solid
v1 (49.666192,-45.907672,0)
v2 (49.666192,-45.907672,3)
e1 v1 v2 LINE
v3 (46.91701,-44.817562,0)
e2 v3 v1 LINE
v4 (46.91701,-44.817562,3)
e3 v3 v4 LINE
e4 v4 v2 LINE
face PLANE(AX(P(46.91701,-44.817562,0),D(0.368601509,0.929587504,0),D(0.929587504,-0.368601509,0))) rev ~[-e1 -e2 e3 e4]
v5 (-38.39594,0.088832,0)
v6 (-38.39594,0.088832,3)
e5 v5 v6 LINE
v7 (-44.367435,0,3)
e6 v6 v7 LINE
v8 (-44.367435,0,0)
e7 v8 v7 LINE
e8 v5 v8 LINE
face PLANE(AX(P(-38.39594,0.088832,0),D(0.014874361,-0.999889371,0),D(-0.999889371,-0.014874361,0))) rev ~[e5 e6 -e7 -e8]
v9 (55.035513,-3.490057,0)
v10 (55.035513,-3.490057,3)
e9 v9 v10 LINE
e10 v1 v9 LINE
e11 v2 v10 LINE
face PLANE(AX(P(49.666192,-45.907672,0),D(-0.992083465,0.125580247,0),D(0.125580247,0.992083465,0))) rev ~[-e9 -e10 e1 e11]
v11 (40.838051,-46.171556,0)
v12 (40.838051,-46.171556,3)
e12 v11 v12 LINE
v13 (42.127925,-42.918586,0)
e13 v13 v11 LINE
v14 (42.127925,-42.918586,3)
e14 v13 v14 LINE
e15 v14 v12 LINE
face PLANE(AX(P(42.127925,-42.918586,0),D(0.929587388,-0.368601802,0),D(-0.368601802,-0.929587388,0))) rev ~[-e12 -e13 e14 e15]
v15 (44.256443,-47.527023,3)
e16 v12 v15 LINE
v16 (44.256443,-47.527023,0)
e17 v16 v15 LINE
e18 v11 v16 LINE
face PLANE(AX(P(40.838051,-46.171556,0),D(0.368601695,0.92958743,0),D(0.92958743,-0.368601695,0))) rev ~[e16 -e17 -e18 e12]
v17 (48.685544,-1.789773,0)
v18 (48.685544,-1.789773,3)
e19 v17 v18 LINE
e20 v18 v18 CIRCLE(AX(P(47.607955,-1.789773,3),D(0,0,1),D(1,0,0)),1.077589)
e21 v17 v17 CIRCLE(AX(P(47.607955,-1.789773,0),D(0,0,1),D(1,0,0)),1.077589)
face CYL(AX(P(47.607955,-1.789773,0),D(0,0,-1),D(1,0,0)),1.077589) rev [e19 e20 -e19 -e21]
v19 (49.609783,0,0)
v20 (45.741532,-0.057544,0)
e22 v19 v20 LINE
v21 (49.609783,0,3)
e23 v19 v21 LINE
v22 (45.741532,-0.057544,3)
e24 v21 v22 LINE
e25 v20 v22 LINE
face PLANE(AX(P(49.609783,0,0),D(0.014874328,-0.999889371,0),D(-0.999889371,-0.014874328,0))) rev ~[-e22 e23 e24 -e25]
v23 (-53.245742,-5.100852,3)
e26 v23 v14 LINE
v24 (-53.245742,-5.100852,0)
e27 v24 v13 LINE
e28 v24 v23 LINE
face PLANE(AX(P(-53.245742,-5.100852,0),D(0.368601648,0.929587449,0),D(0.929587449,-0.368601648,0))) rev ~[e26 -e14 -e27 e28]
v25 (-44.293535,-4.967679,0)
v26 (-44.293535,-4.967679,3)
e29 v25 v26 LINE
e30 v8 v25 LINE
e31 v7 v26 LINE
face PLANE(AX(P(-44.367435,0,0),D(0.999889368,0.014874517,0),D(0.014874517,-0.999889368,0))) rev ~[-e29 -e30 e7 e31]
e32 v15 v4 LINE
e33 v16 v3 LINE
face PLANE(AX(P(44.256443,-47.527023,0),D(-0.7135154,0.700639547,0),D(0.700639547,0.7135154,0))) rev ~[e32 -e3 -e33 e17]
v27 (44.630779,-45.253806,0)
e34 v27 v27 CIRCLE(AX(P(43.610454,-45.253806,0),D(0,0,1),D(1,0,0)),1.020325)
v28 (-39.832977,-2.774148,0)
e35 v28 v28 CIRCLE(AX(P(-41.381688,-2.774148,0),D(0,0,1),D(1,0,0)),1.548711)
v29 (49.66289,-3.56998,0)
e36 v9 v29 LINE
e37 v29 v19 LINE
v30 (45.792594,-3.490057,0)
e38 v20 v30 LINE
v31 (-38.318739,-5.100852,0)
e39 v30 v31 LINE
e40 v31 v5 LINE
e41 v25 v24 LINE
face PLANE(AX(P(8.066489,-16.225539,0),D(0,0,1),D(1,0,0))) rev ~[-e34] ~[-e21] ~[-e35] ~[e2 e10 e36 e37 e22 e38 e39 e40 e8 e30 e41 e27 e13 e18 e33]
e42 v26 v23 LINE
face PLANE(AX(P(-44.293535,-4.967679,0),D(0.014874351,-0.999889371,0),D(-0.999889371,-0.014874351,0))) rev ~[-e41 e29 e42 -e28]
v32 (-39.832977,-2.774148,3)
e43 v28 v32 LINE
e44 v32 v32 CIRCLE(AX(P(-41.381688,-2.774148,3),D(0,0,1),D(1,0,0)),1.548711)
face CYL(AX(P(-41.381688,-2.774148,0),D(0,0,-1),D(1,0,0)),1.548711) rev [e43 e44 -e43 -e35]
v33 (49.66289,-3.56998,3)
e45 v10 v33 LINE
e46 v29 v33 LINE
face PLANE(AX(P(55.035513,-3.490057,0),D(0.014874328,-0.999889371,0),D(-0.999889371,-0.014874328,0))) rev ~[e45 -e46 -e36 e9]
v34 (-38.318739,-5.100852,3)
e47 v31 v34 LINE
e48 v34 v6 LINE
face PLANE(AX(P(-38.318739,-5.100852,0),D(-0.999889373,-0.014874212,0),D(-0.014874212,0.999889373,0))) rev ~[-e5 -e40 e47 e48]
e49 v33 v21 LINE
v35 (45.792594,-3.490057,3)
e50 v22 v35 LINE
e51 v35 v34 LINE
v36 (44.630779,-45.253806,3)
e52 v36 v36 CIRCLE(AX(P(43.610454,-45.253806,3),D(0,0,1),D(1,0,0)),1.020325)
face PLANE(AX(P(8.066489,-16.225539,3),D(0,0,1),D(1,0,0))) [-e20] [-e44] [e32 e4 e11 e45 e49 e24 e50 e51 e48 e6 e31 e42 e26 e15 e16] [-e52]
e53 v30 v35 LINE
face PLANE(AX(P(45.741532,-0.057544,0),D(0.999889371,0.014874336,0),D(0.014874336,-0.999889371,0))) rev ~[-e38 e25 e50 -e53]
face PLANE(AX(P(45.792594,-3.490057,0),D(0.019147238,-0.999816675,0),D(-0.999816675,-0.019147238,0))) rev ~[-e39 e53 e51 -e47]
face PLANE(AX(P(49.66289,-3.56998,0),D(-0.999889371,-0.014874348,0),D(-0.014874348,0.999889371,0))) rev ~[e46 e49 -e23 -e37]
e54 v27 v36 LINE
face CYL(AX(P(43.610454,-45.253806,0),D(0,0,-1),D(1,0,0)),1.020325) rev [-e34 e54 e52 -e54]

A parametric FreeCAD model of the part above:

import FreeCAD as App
import Part
import Sketcher
from FreeCAD import Vector
Q = App.Units.Quantity

doc = App.newDocument("Part")
body = doc.addObject("PartDesign::Body", "Body")

sketch1 = body.newObject("Sketcher::SketchObject", "Sketch")
sketch1.AttachmentSupport = (doc.getObject("XY_Plane"), [""])
sketch1.MapMode = "FlatFace"
sketch1.addGeometry([
    Part.LineSegment(Vector(-44.293535, -4.967679, 0), Vector(-53.245742, -5.100852, 0)),
    Part.LineSegment(Vector(-53.245742, -5.100852, 0), Vector(42.127925, -42.918586, 0)),
    Part.LineSegment(Vector(42.127925, -42.918586, 0), Vector(40.838051, -46.171556, 0)),
    Part.LineSegment(Vector(40.838051, -46.171556, 0), Vector(44.256443, -47.527023, 0)),
    Part.LineSegment(Vector(44.256443, -47.527023, 0), Vector(46.91701, -44.817562, 0)),
    Part.LineSegment(Vector(46.91701, -44.817562, 0), Vector(49.666192, -45.907672, 0)),
    Part.LineSegment(Vector(49.666192, -45.907672, 0), Vector(55.035513, -3.490057, 0)),
    Part.LineSegment(Vector(55.035513, -3.490057, 0), Vector(49.66289, -3.56998, 0)),
    Part.LineSegment(Vector(49.66289, -3.56998, 0), Vector(49.609783, 0, 0)),
    Part.LineSegment(Vector(49.609783, 0, 0), Vector(45.741532, -0.057544, 0)),
    Part.LineSegment(Vector(45.741532, -0.057544, 0), Vector(45.792594, -3.490057, 0)),
    Part.LineSegment(Vector(45.792594, -3.490057, 0), Vector(-38.318739, -5.100852, 0)),
    Part.LineSegment(Vector(-38.318739, -5.100852, 0), Vector(-38.39594, 0.088832, 0)),
    Part.LineSegment(Vector(-38.39594, 0.088832, 0), Vector(-44.367435, 0, 0)),
    Part.LineSegment(Vector(-44.367435, 0, 0), Vector(-44.293535, -4.967679, 0)),
    Part.Circle(Vector(43.610454, -45.253806, 0), Vector(0, 0, 1), 1.020325),
    Part.Circle(Vector(-41.381688, -2.774148, 0), Vector(0, 0, 1), 1.548711),
    Part.Circle(Vector(47.607955, -1.789773, 0), Vector(0, 0, 1), 1.077589),
], False)
sketch1.addConstraint([
    Sketcher.Constraint("Coincident", 0, 2, 1, 1),
    Sketcher.Constraint("Coincident", 1, 2, 2, 1),
    Sketcher.Constraint("Coincident", 2, 2, 3, 1),
    Sketcher.Constraint("Coincident", 3, 2, 4, 1),
    Sketcher.Constraint("Coincident", 4, 2, 5, 1),
    Sketcher.Constraint("Coincident", 5, 2, 6, 1),
    Sketcher.Constraint("Coincident", 6, 2, 7, 1),
    Sketcher.Constraint("Coincident", 7, 2, 8, 1),
    Sketcher.Constraint("Coincident", 8, 2, 9, 1),
    Sketcher.Constraint("Coincident", 9, 2, 10, 1),
    Sketcher.Constraint("Coincident", 10, 2, 11, 1),
    Sketcher.Constraint("Coincident", 11, 2, 12, 1),
    Sketcher.Constraint("Coincident", 12, 2, 13, 1),
    Sketcher.Constraint("Coincident", 13, 2, 14, 1),
    Sketcher.Constraint("Coincident", 14, 2, 0, 1),
    Sketcher.Constraint("PointOnObject", 8, 2, -1),
    Sketcher.Constraint("PointOnObject", 13, 2, -1),
    Sketcher.Constraint("Diameter", 15, Q("2.04065 mm")),
    Sketcher.Constraint("Diameter", 16, Q("3.097422 mm")),
    Sketcher.Constraint("Diameter", 17, Q("2.155178 mm")),
    Sketcher.Constraint("DistanceX", 15, 3, 17, 3, Q("3.997501 mm")),
    Sketcher.Constraint("DistanceX", 12, 2, 11, 2, Q("0.077201 mm")),
    Sketcher.Constraint("DistanceX", 0, 2, 12, 2, Q("14.849802 mm")),
    Sketcher.Constraint("DistanceX", 13, 2, 14, 2, Q("0.0739 mm")),
    Sketcher.Constraint("Distance", 2, Q("3.49937 mm")),
    Sketcher.Constraint("Distance", 3, Q("3.677322 mm")),
    Sketcher.Constraint("Distance", 4, Q("3.797341 mm")),
    Sketcher.Constraint("Distance", 5, Q("2.957421 mm")),
    Sketcher.Constraint("Distance", 9, Q("3.868679 mm")),
    Sketcher.Constraint("Distance", 12, Q("5.190258 mm")),
    Sketcher.Constraint("Distance", 14, Q("4.968229 mm")),
    Sketcher.Constraint("DistanceY", 0, 2, -1, 1, Q("5.100852 mm")),
    Sketcher.Constraint("DistanceX", -1, 1, 2, 2, Q("40.838051 mm")),
    Sketcher.Constraint("DistanceX", -1, 1, 4, 2, Q("46.91701 mm")),
    Sketcher.Constraint("DistanceY", 5, 2, -1, 1, Q("45.907672 mm")),
    Sketcher.Constraint("DistanceX", -1, 1, 7, 2, Q("49.66289 mm")),
    Sketcher.Constraint("DistanceY", 7, 2, -1, 1, Q("3.56998 mm")),
    Sketcher.Constraint("DistanceX", 11, 2, -1, 1, Q("38.318739 mm")),
    Sketcher.Constraint("DistanceY", 11, 2, -1, 1, Q("5.100852 mm")),
    Sketcher.Constraint("DistanceX", 16, 3, 15, 3, Q("84.992142 mm")),
    Sketcher.Constraint("DistanceY", 0, 2, 17, 3, Q("3.311079 mm")),
    Sketcher.Constraint("DistanceX", 1, 2, 15, 3, Q("1.482529 mm")),
    Sketcher.Constraint("DistanceY", 15, 3, 1, 2, Q("2.33522 mm")),
    Sketcher.Constraint("DistanceY", 2, 2, 15, 3, Q("0.91775 mm")),
    Sketcher.Constraint("DistanceY", 2, 2, 16, 3, Q("43.397408 mm")),
    Sketcher.Constraint("DistanceX", 15, 3, 3, 2, Q("0.645989 mm")),
    Sketcher.Constraint("DistanceY", 3, 2, 17, 3, Q("45.73725 mm")),
    Sketcher.Constraint("DistanceX", 17, 3, 6, 2, Q("7.427558 mm")),
    Sketcher.Constraint("DistanceY", 1, 2, 6, 2, Q("39.428529 mm")),
    Sketcher.Constraint("DistanceX", 17, 3, 8, 2, Q("2.001828 mm")),
    Sketcher.Constraint("DistanceY", 17, 3, 9, 2, Q("1.732229 mm")),
    Sketcher.Constraint("DistanceX", 10, 2, 17, 3, Q("1.815361 mm")),
    Sketcher.Constraint("DistanceY", 10, 2, 12, 2, Q("3.578889 mm")),
    Sketcher.Constraint("Distance", 0, Q("8.953197 mm")),
])
pad1 = body.newObject("PartDesign::Pad", "Pad")
pad1.Profile = sketch1
pad1.Length = 3

doc.recompute()
